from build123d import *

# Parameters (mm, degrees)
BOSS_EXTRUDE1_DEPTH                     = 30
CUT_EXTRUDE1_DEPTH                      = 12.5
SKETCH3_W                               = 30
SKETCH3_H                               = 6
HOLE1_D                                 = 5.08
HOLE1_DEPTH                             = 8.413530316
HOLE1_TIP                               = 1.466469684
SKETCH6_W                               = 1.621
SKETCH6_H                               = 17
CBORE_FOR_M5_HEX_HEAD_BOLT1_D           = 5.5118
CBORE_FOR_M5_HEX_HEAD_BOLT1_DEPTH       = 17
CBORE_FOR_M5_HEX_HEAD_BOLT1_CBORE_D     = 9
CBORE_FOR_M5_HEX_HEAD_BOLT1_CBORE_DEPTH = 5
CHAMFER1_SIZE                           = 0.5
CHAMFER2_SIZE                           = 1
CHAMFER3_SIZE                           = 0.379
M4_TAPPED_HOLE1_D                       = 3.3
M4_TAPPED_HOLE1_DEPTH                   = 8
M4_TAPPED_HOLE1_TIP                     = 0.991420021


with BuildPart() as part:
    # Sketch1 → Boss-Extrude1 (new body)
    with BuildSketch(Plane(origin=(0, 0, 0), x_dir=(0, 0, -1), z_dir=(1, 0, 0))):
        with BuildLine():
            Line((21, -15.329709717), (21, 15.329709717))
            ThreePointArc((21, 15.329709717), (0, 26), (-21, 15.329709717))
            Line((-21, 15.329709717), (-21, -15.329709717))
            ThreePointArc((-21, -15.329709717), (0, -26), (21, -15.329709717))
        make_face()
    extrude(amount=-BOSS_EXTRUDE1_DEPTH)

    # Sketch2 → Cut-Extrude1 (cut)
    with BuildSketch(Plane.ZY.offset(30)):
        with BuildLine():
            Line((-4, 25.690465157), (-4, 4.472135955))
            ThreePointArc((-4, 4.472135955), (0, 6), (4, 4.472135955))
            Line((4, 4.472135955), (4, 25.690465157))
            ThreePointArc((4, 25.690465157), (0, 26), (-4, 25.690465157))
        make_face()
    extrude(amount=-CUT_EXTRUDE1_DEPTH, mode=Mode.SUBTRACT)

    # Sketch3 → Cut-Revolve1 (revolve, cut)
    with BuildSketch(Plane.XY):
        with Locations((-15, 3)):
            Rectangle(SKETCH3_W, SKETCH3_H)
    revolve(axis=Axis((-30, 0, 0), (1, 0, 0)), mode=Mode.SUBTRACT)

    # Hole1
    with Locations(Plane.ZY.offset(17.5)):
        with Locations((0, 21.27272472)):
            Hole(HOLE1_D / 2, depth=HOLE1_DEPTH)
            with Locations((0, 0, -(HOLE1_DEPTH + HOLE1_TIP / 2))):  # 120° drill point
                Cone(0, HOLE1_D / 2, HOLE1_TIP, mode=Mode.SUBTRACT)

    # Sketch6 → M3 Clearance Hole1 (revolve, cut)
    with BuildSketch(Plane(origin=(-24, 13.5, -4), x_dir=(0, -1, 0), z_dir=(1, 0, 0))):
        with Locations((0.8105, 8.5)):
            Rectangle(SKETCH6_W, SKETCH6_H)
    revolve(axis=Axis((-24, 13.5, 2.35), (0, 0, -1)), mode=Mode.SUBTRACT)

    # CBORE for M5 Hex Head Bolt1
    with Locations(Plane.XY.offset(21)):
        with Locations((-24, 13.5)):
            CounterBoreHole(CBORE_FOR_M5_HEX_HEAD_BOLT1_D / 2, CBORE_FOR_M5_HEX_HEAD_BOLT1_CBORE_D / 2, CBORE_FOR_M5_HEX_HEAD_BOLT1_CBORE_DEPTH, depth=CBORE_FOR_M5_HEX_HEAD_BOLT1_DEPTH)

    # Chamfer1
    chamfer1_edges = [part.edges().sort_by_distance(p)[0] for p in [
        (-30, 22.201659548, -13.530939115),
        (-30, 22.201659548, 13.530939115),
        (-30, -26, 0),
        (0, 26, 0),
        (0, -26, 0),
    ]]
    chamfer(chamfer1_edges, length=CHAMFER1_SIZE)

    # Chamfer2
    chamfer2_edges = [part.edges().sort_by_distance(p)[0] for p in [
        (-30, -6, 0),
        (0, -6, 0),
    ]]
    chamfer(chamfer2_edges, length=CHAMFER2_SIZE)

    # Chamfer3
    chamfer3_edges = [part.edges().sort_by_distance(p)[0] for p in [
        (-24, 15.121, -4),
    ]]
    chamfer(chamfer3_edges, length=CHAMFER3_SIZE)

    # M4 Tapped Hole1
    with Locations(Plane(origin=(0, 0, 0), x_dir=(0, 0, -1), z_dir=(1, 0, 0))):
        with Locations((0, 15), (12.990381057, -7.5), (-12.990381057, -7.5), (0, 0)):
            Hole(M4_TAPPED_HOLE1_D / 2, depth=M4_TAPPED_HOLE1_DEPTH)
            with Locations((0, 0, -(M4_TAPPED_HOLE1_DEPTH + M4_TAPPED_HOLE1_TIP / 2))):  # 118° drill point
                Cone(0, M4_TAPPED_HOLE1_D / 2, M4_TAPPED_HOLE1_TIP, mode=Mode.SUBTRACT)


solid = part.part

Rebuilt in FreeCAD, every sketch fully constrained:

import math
import FreeCAD as App
import Part
import Sketcher

V = App.Vector


def edges_at(feature, points):
    """Names of the edges that pass closest to the given points."""
    edges = feature.Shape.Edges
    near = lambda p: min(range(len(edges)), key=lambda i: edges[i].distToShape(Part.Vertex(*p))[0])
    return sorted({f"Edge{near(p) + 1}" for p in points})


def add_polygon(sketch, points):
    """Adds a closed chain of lines whose ends are joined by coincident constraints."""
    first, n = sketch.GeometryCount, len(points)
    for a, b in zip(points, points[1:] + points[:1]):
        sketch.addGeometry(Part.LineSegment(App.Vector(*a, 0), App.Vector(*b, 0)), False)
    for i in range(n):
        sketch.addConstraint(Sketcher.Constraint("Coincident", first + i, 2, first + (i + 1) % n, 1))

doc = App.newDocument("Part")
body = doc.addObject("PartDesign::Body", "Body")

# Sketch on YZ plane
sketch1 = body.newObject("Sketcher::SketchObject", "Sketch")
sketch1.AttachmentSupport = (doc.getObject("YZ_Plane"), [""])
sketch1.MapMode = "FlatFace"
sketch1.addGeometry(Part.LineSegment(V(-15, -21, 0), V(15, -21, 0)), False)
sketch1.addGeometry(Part.ArcOfCircle(Part.Circle(V(0, 0, 0), V(0, 0, 1), 26), math.radians(-54), math.radians(54)), False)
sketch1.addGeometry(Part.LineSegment(V(15, 21, 0), V(-15, 21, 0)), False)
sketch1.addGeometry(Part.ArcOfCircle(Part.Circle(V(0, 0, 0), V(0, 0, 1), 26), math.radians(126), math.radians(234)), False)
sketch1.addConstraint(Sketcher.Constraint("Coincident", 0, 2, 1, 1))
sketch1.addConstraint(Sketcher.Constraint("Coincident", 1, 2, 2, 1))
sketch1.addConstraint(Sketcher.Constraint("Coincident", 2, 2, 3, 1))
sketch1.addConstraint(Sketcher.Constraint("Coincident", 3, 2, 0, 1))
sketch1.addConstraint(Sketcher.Constraint("Horizontal", 0))
sketch1.addConstraint(Sketcher.Constraint("Horizontal", 2))
sketch1.addConstraint(Sketcher.Constraint("Coincident", 1, 3, -1, 1))
sketch1.addConstraint(Sketcher.Constraint("Coincident", 3, 3, -1, 1))
sketch1.addConstraint(Sketcher.Constraint("Equal", 1, 3))
sketch1.addConstraint(Sketcher.Constraint("Vertical", 0, 2, 1, 2))
sketch1.addConstraint(Sketcher.Constraint("Radius", 1, 26.0))
sketch1.addConstraint(Sketcher.Constraint("DistanceY", 0, 2, -1, 1, 21.0))
pad1 = body.newObject("PartDesign::Pad", "Pad")
pad1.Profile = sketch1
pad1.Length = 30
pad1.Reversed = True

# Sketch on YZ plane
sketch2 = body.newObject("Sketcher::SketchObject", "Sketch001")
sketch2.AttachmentSupport = (doc.getObject("YZ_Plane"), [""])
sketch2.MapMode = "FlatFace"
sketch2.AttachmentOffset = App.Placement(V(0, 0, -30), App.Rotation())
sketch2.addGeometry(Part.LineSegment(V(26, -4, 0), V(4, -4, 0)), False)
sketch2.addGeometry(Part.ArcOfCircle(Part.Circle(V(0, 0, 0), V(0, 0, 1), 6), math.radians(-42), math.radians(42)), False)
sketch2.addGeometry(Part.LineSegment(V(4, 4, 0), V(26, 4, 0)), False)
sketch2.addGeometry(Part.ArcOfCircle(Part.Circle(V(0, 0, 0), V(0, 0, 1), 26), math.radians(-8.85), math.radians(8.85)), False)
sketch2.addConstraint(Sketcher.Constraint("Coincident", 0, 2, 1, 1))
sketch2.addConstraint(Sketcher.Constraint("Coincident", 1, 2, 2, 1))
sketch2.addConstraint(Sketcher.Constraint("Coincident", 2, 2, 3, 2))
sketch2.addConstraint(Sketcher.Constraint("Coincident", 3, 1, 0, 1))
sketch2.addConstraint(Sketcher.Constraint("Horizontal", 0))
sketch2.addConstraint(Sketcher.Constraint("Horizontal", 2))
sketch2.addConstraint(Sketcher.Constraint("Coincident", 1, 3, -1, 1))
sketch2.addConstraint(Sketcher.Constraint("Coincident", 3, 3, -1, 1))
sketch2.addConstraint(Sketcher.Constraint("Vertical", 0, 2, 1, 2))
sketch2.addConstraint(Sketcher.Constraint("Radius", 1, 6.0))
sketch2.addConstraint(Sketcher.Constraint("Radius", 3, 26.0))
sketch2.addConstraint(Sketcher.Constraint("DistanceY", 0, 2, -1, 1, 4.0))
pocket1 = body.newObject("PartDesign::Pocket", "Pocket")
pocket1.Profile = sketch2
pocket1.Length = 12.5
pocket1.Reversed = True

# Sketch on XY plane
sketch3 = body.newObject("Sketcher::SketchObject", "Sketch002")
sketch3.AttachmentSupport = (doc.getObject("XY_Plane"), [""])
sketch3.MapMode = "FlatFace"
add_polygon(sketch3, [(-30, 6), (-30, 0), (0, 0), (0, 6)])  # lines 0-3
sketch3.addConstraint(Sketcher.Constraint("Vertical", 0))
sketch3.addConstraint(Sketcher.Constraint("Horizontal", 1))
sketch3.addConstraint(Sketcher.Constraint("Vertical", 2))
sketch3.addConstraint(Sketcher.Constraint("Horizontal", 3))
sketch3.addConstraint(Sketcher.Constraint("Coincident", 1, 2, -1, 1))
sketch3.addConstraint(Sketcher.Constraint("DistanceX", 1, 1, 1, 2, 30.0))
sketch3.addConstraint(Sketcher.Constraint("DistanceY", 0, 2, 0, 1, 6.0))
groove = body.newObject("PartDesign::Groove", "Groove")
groove.Profile = sketch3
groove.ReferenceAxis = (sketch3, ["H_Axis"])
groove.Angle = 360

# Sketch on YZ plane
sketch4 = body.newObject("Sketcher::SketchObject", "Sketch003")
sketch4.AttachmentSupport = (doc.getObject("YZ_Plane"), [""])
sketch4.MapMode = "FlatFace"
sketch4.AttachmentOffset = App.Placement(V(0, 0, -17.5), App.Rotation())
sketch4.addGeometry(Part.Circle(V(21.3, 0, 0), V(0, 0, 1), 2.5), False)
sketch4.addConstraint(Sketcher.Constraint("PointOnObject", 0, 3, -1))
sketch4.addConstraint(Sketcher.Constraint("Diameter", 0, 5.08))
sketch4.addConstraint(Sketcher.Constraint("DistanceX", -1, 1, 0, 3, 21.272725))
doc.recompute()
hole = body.newObject("PartDesign::Hole", "Hole")
hole.Profile = sketch4
hole.ThreadType = "None"
hole.Diameter = 5.08
hole.DepthType = "Dimension"
hole.Depth = 8.41353
hole.DrillPoint = "Angled"
hole.DrillPointAngle = 120
hole.Reversed = True

# Sketch on YZ plane
sketch5 = body.newObject("Sketcher::SketchObject", "Sketch004")
sketch5.AttachmentSupport = (doc.getObject("YZ_Plane"), [""])
sketch5.MapMode = "FlatFace"
sketch5.AttachmentOffset = App.Placement(V(0, 0, -24), App.Rotation())
add_polygon(sketch5, [(13.5, -21), (13.5, -4), (11.9, -4), (11.9, -21)])  # lines 0-3
sketch5.addGeometry(Part.LineSegment(V(13.5, -4, 0), V(13.5, -21, 0)), True)  # axis
sketch5.addConstraint(Sketcher.Constraint("Vertical", 0))
sketch5.addConstraint(Sketcher.Constraint("Horizontal", 1))
sketch5.addConstraint(Sketcher.Constraint("Vertical", 2))
sketch5.addConstraint(Sketcher.Constraint("Horizontal", 3))
sketch5.addConstraint(Sketcher.Constraint("Vertical", 4))
sketch5.addConstraint(Sketcher.Constraint("Coincident", 4, 1, 0, 2))
sketch5.addConstraint(Sketcher.Constraint("Horizontal", 2, 2, 4, 2))
sketch5.addConstraint(Sketcher.Constraint("DistanceY", 0, 1, 0, 2, 17.0))
sketch5.addConstraint(Sketcher.Constraint("DistanceY", 0, 2, -1, 1, 4.0))
sketch5.addConstraint(Sketcher.Constraint("DistanceX", -1, 1, 0, 2, 13.5))
sketch5.addConstraint(Sketcher.Constraint("DistanceX", 1, 2, 1, 1, 1.621))
groove2 = body.newObject("PartDesign::Groove", "Groove001")
groove2.Profile = sketch5
groove2.ReferenceAxis = (sketch5, ["Axis0"])
groove2.Angle = 360

# Sketch on XY plane
sketch6 = body.newObject("Sketcher::SketchObject", "Sketch005")
sketch6.AttachmentSupport = (doc.getObject("XY_Plane"), [""])
sketch6.MapMode = "FlatFace"
sketch6.AttachmentOffset = App.Placement(V(0, 0, 21), App.Rotation())
sketch6.addGeometry(Part.Circle(V(-24, 13.5, 0), V(0, 0, 1), 2.8), False)
sketch6.addConstraint(Sketcher.Constraint("DistanceX", 0, 3, -1, 1, 24.0))
sketch6.addConstraint(Sketcher.Constraint("Diameter", 0, 5.5118))
sketch6.addConstraint(Sketcher.Constraint("DistanceY", -1, 1, 0, 3, 13.5))
doc.recompute()
hole2 = body.newObject("PartDesign::Hole", "Hole001")
hole2.Profile = sketch6
hole2.ThreadType = "None"
hole2.Diameter = 5.5118
hole2.DepthType = "Dimension"
hole2.Depth = 17
hole2.DrillPoint = "Flat"
hole2.HoleCutType = "Counterbore"
hole2.HoleCutDiameter = 9
hole2.HoleCutDepth = 5
doc.recompute()

chamfer = body.newObject("PartDesign::Chamfer", "Chamfer")
chamfer.Base = (hole2, edges_at(hole2, [
    (-30, 22.202, -13.531),
    (-30, 22.202, 13.531),
    (-30, -26, 0),
    (0, 26, 0),
    (0, -26, 0),
]))
chamfer.Size = 0.5
doc.recompute()

chamfer2 = body.newObject("PartDesign::Chamfer", "Chamfer001")
chamfer2.Base = (chamfer, edges_at(chamfer, [(-30, -6, 0), (0, -6, 0)]))
chamfer2.Size = 1
doc.recompute()

chamfer3 = body.newObject("PartDesign::Chamfer", "Chamfer002")
chamfer3.Base = (chamfer2, edges_at(chamfer2, [(-24, 15.121, -4)]))
chamfer3.Size = 0.379

# Sketch on YZ plane
sketch7 = body.newObject("Sketcher::SketchObject", "Sketch006")
sketch7.AttachmentSupport = (doc.getObject("YZ_Plane"), [""])
sketch7.MapMode = "FlatFace"
sketch7.addGeometry(Part.Circle(V(15, 0, 0), V(0, 0, 1), 1.6), False)
sketch7.addGeometry(Part.Circle(V(-7.5, -13, 0), V(0, 0, 1), 1.6), False)
sketch7.addGeometry(Part.Circle(V(-7.5, 13, 0), V(0, 0, 1), 1.6), False)
sketch7.addGeometry(Part.Circle(V(0, 0, 0), V(0, 0, 1), 1.6), False)
sketch7.addConstraint(Sketcher.Constraint("Coincident", 3, 3, -1, 1))
sketch7.addConstraint(Sketcher.Constraint("Equal", 0, 1))
sketch7.addConstraint(Sketcher.Constraint("Equal", 1, 2))
sketch7.addConstraint(Sketcher.Constraint("Equal", 2, 3))
sketch7.addConstraint(Sketcher.Constraint("Symmetric", 1, 3, 2, 3, -1))
sketch7.addConstraint(Sketcher.Constraint("PointOnObject", 0, 3, -1))
sketch7.addConstraint(Sketcher.Constraint("Diameter", 0, 3.3))
sketch7.addConstraint(Sketcher.Constraint("DistanceX", -1, 1, 0, 3, 15.0))
sketch7.addConstraint(Sketcher.Constraint("DistanceX", 1, 3, -1, 1, 7.5))
sketch7.addConstraint(Sketcher.Constraint("DistanceY", 1, 3, -1, 1, 12.990381))
doc.recompute()
hole3 = body.newObject("PartDesign::Hole", "Hole002")
hole3.Profile = sketch7
hole3.ThreadType = "None"
hole3.Diameter = 3.3
hole3.DepthType = "Dimension"
hole3.Depth = 8
hole3.DrillPoint = "Angled"
hole3.DrillPointAngle = 118

doc.recompute()
